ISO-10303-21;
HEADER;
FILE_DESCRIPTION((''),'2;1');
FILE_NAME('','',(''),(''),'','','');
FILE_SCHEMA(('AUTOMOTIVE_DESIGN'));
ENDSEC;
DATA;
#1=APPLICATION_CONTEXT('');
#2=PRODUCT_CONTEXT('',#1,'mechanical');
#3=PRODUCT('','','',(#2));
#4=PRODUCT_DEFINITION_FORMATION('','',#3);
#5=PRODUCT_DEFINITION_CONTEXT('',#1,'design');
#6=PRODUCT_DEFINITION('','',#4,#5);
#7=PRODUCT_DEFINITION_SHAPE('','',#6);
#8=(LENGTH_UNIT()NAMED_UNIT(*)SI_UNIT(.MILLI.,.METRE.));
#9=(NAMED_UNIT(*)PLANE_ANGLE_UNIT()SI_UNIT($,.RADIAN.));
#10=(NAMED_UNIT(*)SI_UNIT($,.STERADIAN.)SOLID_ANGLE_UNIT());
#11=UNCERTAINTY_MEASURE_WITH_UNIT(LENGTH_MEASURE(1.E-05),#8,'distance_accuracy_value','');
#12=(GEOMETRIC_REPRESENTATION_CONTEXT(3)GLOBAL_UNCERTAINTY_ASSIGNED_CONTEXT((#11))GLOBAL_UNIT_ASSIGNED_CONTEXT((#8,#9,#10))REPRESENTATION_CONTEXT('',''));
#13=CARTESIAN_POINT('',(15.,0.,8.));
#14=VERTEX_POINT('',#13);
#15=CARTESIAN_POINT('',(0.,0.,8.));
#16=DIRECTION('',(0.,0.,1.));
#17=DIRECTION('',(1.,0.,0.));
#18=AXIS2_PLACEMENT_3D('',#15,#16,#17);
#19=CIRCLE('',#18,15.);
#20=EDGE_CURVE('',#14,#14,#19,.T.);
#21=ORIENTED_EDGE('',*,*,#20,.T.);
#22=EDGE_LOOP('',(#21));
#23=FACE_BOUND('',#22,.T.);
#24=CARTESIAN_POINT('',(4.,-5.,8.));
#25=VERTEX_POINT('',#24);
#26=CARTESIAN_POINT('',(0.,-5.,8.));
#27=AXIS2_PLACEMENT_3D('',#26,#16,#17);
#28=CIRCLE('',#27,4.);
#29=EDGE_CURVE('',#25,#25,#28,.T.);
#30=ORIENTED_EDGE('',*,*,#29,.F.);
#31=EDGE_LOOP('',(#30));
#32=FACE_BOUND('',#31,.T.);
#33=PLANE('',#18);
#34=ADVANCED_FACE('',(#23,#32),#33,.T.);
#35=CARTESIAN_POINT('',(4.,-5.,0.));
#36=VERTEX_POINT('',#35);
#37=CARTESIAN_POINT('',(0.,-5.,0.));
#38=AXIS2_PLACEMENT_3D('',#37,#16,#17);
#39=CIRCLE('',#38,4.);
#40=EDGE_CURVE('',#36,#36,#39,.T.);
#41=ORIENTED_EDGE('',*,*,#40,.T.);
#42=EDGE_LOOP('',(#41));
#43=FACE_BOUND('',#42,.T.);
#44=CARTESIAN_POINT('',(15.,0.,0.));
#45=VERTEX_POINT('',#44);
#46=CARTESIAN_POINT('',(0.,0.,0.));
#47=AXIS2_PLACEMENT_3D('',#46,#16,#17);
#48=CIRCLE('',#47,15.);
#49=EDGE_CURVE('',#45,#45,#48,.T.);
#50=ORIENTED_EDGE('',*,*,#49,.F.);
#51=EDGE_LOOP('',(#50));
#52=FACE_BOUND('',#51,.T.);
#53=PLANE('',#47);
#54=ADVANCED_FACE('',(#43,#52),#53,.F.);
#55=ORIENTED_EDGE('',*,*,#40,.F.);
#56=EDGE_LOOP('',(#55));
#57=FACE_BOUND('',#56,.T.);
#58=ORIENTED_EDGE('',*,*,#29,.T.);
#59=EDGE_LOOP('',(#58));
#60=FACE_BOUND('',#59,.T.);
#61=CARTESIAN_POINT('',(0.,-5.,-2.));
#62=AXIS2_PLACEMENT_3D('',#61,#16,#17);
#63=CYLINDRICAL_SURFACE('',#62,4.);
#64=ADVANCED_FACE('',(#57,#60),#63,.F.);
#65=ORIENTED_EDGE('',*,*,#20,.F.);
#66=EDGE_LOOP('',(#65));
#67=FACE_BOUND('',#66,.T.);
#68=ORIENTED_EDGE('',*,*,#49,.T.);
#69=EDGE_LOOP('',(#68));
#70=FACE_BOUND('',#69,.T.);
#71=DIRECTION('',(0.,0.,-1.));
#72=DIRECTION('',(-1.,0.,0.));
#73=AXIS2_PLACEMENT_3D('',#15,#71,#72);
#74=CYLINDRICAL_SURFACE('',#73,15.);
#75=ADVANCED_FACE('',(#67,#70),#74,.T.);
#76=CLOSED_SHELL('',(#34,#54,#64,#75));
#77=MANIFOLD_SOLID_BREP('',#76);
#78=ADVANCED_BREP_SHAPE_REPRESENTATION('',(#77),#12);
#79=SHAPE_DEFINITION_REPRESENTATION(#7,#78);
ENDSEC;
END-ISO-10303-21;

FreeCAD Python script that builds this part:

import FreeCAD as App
import Part
import Sketcher

V = App.Vector
Q = App.Units.Quantity

doc = App.newDocument("Part")
body = doc.addObject("PartDesign::Body", "Body")

# Sketch on XY plane
sketch1 = doc.addObject("Sketcher::SketchObject", "Sketch")
body.addObject(sketch1)
sketch1.AttachmentSupport = (doc.XY_Plane, [""])
sketch1.MapMode = "FlatFace"
sketch1.addGeometry(Part.Circle(V(0, 0, 0), V(0, 0, 1), 15), False)
sketch1.addConstraint([
    Sketcher.Constraint("Coincident", 0, 3, -1, 1),
    Sketcher.Constraint("Diameter", 0, Q("30 mm")),
])
pad1 = doc.addObject("PartDesign::Pad", "Pad")
body.addObject(pad1)
pad1.Profile = sketch1
pad1.Length = 8

# Sketch on XY plane
sketch2 = doc.addObject("Sketcher::SketchObject", "Sketch001")
body.addObject(sketch2)
sketch2.AttachmentSupport = (doc.XY_Plane, [""])
sketch2.MapMode = "FlatFace"
sketch2.AttachmentOffset = App.Placement(V(0, 0, 8), App.Rotation())
sketch2.addGeometry(Part.Circle(V(0, -5, 0), V(0, 0, 1), 4), False)
sketch2.addConstraint([
    Sketcher.Constraint("PointOnObject", 0, 3, -2),
    Sketcher.Constraint("Diameter", 0, Q("8 mm")),
    Sketcher.Constraint("DistanceY", 0, 3, -1, 1, Q("5 mm")),
])
pocket1 = doc.addObject("PartDesign::Pocket", "Pocket")
body.addObject(pocket1)
pocket1.Profile = sketch2
pocket1.Length = 10

doc.recompute()
